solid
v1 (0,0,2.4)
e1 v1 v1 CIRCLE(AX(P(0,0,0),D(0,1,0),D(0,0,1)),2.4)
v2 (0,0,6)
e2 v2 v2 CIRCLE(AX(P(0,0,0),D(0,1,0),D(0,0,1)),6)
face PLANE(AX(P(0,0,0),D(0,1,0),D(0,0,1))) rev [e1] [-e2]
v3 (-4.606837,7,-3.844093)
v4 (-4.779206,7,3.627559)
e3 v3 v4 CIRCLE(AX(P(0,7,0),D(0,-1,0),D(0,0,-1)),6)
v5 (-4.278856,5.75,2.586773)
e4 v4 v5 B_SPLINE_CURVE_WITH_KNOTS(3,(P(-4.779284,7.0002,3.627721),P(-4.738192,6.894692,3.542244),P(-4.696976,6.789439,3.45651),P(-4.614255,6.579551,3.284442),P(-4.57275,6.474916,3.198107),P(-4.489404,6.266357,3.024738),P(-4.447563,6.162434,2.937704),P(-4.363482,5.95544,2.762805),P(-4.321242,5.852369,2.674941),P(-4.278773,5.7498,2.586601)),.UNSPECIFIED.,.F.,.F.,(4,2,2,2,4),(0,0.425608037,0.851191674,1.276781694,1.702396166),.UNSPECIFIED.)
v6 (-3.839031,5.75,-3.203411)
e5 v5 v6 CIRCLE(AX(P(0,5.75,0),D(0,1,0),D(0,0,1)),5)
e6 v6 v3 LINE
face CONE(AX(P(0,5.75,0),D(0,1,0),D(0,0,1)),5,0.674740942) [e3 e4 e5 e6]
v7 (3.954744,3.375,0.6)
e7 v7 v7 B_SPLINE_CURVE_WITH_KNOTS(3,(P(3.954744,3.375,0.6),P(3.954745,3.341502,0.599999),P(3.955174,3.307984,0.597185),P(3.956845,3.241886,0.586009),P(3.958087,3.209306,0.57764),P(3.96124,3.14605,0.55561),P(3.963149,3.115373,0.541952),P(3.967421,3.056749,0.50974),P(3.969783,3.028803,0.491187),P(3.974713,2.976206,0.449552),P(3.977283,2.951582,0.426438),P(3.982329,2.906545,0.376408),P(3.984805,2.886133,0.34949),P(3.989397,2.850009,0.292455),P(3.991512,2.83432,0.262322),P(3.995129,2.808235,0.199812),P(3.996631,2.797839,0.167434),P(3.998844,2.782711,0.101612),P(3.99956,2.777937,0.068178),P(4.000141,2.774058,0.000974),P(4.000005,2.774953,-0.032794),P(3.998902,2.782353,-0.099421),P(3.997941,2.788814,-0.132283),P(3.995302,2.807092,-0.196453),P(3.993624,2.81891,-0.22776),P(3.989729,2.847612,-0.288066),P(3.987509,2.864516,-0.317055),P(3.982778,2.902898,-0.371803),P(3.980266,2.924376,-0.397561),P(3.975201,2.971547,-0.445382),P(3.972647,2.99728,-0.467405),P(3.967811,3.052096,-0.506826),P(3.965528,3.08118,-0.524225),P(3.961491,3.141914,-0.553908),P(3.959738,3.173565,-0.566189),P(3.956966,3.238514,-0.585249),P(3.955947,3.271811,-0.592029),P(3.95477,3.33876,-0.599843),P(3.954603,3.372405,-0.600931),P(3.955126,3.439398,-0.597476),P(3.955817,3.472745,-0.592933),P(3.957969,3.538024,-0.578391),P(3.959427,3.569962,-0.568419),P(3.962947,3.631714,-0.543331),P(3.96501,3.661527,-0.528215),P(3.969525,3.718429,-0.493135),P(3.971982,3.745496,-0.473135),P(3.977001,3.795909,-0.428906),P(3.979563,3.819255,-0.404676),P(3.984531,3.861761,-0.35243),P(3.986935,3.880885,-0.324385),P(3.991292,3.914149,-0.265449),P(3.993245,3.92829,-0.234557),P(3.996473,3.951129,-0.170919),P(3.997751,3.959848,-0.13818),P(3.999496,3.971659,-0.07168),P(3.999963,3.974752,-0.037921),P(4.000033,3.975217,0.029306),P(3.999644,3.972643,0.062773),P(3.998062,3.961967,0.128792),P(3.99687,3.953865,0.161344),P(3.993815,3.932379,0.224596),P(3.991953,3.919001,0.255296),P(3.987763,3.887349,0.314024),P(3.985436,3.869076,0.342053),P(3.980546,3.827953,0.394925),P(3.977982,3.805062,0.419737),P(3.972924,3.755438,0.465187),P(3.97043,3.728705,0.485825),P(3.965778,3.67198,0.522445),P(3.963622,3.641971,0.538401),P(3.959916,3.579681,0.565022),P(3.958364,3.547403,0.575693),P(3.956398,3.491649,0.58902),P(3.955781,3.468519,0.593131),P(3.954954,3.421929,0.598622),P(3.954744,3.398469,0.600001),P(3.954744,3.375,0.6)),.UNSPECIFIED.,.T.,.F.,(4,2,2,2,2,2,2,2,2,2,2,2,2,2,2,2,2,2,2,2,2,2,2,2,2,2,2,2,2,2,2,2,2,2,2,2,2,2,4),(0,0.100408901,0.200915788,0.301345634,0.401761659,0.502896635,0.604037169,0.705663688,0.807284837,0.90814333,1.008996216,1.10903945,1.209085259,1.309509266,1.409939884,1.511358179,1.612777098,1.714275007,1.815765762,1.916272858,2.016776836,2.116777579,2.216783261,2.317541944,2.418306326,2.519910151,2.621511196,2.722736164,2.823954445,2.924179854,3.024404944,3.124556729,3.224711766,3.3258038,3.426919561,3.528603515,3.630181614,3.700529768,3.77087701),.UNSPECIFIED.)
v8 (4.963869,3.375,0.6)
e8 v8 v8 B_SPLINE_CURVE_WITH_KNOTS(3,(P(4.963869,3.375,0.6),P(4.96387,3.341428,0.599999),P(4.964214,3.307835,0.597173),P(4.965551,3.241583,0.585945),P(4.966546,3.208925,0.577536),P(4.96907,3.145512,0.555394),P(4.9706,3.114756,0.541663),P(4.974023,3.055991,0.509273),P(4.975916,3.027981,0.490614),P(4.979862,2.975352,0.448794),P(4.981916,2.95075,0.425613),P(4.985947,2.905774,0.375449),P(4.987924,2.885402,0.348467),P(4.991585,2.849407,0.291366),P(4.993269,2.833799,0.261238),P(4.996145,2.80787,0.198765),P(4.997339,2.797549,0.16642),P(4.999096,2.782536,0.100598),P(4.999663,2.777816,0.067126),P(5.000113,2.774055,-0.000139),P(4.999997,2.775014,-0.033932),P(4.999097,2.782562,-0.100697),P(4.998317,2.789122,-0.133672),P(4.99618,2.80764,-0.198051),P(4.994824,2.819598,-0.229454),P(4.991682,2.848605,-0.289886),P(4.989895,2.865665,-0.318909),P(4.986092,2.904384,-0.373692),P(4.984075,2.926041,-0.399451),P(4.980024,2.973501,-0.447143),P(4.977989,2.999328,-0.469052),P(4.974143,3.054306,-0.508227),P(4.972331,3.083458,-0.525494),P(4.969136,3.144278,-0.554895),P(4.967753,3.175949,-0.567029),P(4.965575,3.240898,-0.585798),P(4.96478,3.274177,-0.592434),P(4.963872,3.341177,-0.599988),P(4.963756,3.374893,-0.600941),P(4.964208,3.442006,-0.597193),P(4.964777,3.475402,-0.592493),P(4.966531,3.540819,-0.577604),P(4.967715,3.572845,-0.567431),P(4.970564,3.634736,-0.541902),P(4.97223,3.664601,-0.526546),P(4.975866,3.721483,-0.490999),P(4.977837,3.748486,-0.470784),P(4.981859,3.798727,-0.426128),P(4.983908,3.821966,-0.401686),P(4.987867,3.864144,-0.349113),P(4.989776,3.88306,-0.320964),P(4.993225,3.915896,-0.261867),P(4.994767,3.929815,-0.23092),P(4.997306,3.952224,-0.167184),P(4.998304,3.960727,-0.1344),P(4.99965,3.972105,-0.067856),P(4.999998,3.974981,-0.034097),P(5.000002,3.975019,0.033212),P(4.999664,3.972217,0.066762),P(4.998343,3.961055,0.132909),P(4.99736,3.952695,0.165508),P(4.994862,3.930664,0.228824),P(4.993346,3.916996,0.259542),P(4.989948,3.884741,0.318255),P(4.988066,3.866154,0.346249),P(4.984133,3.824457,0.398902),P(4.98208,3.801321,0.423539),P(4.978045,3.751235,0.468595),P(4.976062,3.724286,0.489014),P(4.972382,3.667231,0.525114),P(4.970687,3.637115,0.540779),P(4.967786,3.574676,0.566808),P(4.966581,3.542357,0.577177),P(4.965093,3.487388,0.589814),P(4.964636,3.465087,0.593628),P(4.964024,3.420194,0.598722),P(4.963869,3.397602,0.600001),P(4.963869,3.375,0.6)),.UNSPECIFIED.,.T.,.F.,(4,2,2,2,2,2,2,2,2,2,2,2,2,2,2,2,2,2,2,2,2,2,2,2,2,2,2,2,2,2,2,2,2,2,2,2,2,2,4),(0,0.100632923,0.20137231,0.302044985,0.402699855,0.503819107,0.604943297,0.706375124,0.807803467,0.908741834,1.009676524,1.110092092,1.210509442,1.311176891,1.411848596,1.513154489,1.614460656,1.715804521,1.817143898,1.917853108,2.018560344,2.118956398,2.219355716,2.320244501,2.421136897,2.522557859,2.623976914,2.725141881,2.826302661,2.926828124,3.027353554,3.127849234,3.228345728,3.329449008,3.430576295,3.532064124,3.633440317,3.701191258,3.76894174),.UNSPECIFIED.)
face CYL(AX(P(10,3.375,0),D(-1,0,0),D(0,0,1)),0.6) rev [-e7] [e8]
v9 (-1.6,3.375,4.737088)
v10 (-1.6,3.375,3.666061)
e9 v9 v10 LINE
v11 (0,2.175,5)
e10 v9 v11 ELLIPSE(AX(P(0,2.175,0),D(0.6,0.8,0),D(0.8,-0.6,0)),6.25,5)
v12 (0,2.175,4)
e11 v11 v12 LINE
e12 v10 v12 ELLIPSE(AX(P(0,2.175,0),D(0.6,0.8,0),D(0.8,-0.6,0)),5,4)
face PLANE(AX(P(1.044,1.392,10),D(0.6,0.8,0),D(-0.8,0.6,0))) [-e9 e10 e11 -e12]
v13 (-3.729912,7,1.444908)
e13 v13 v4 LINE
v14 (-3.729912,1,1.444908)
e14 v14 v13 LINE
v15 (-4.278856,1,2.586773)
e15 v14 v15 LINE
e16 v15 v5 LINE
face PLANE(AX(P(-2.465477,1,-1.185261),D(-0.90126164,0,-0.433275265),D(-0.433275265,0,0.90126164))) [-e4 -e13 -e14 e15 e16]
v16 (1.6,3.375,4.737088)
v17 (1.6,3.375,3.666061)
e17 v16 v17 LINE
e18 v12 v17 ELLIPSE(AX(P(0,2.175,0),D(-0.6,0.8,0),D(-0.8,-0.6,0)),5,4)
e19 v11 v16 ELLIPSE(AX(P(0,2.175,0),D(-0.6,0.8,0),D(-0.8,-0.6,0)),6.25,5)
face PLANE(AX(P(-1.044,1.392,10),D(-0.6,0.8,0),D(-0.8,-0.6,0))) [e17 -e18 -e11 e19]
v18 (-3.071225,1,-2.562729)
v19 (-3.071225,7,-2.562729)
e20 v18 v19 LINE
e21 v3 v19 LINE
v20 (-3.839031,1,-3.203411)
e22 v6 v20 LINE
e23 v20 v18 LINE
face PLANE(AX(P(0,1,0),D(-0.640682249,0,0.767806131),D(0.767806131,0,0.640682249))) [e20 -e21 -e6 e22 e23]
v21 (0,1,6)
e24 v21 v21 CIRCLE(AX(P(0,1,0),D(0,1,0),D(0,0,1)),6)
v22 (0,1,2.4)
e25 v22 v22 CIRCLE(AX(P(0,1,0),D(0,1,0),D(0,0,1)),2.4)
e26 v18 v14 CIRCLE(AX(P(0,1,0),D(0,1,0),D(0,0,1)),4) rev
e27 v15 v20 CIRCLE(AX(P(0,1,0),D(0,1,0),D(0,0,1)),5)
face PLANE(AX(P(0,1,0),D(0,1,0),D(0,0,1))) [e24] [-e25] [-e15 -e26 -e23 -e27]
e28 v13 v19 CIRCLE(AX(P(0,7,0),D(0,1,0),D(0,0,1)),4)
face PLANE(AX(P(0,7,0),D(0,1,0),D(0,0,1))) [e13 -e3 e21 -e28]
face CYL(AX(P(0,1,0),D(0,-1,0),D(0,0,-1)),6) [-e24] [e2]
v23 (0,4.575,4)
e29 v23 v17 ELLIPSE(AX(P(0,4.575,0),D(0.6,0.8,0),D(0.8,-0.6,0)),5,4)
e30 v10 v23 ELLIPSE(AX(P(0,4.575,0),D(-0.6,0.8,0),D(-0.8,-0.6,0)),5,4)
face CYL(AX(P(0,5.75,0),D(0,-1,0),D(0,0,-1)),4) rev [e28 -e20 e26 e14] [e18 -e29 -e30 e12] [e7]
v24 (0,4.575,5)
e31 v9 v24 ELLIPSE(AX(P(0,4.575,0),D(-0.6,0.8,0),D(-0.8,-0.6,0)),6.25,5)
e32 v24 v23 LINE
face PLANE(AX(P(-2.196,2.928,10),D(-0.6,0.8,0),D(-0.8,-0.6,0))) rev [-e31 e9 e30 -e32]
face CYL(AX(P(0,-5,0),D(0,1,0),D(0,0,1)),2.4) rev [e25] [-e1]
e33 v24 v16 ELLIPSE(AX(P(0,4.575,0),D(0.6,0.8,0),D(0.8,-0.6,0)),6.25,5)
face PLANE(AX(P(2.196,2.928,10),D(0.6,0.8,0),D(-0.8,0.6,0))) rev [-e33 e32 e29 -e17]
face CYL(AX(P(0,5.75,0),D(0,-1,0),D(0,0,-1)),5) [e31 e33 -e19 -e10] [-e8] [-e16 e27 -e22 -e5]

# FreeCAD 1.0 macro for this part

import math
import FreeCAD as App
import Part
import Sketcher


def add_polygon(sketch, points):
    """Adds a closed chain of lines whose ends are joined by coincident constraints."""
    first, n = sketch.GeometryCount, len(points)
    for a, b in zip(points, points[1:] + points[:1]):
        sketch.addGeometry(Part.LineSegment(App.Vector(*a, 0), App.Vector(*b, 0)), False)
    for i in range(n):
        sketch.addConstraint(Sketcher.Constraint("Coincident", first + i, 2, first + (i + 1) % n, 1))

doc = App.newDocument("Part")
body = doc.addObject("PartDesign::Body", "Body")

sketch1 = body.newObject("Sketcher::SketchObject", "Sketch")
sketch1.AttachmentSupport = (doc.getObject("XZ_Plane"), [""])
sketch1.MapMode = "FlatFace"
sketch1.addGeometry(Part.Circle(App.Vector(0, 0, 0), App.Vector(0, 0, 1), 6), False)
sketch1.addConstraint(Sketcher.Constraint("Coincident", 0, 3, -1, 1))
sketch1.addConstraint(Sketcher.Constraint("Diameter", 0, 12.0))
pad1 = body.newObject("PartDesign::Pad", "Pad")
pad1.Profile = sketch1
pad1.Length = 1
pad1.Reversed = True

sketch2 = body.newObject("Sketcher::SketchObject", "Sketch001")
sketch2.AttachmentSupport = (doc.getObject("XZ_Plane"), [""])
sketch2.MapMode = "FlatFace"
sketch2.AttachmentOffset = App.Placement(App.Vector(0, 0, -1), App.Rotation())
sketch2.addGeometry(Part.Circle(App.Vector(0, 0, 0), App.Vector(0, 0, 1), 5), False)
sketch2.addGeometry(Part.Circle(App.Vector(0, 0, 0), App.Vector(0, 0, 1), 4), False)
sketch2.addConstraint(Sketcher.Constraint("Coincident", 0, 3, -1, 1))
sketch2.addConstraint(Sketcher.Constraint("Coincident", 1, 3, -1, 1))
sketch2.addConstraint(Sketcher.Constraint("Diameter", 0, 10.0))
sketch2.addConstraint(Sketcher.Constraint("Diameter", 1, 8.0))
pad2 = body.newObject("PartDesign::Pad", "Pad001")
pad2.Profile = sketch2
pad2.Length = 4.75
pad2.Reversed = True

sketch3 = body.newObject("Sketcher::SketchObject", "Sketch002")
sketch3.AttachmentSupport = (doc.getObject("XY_Plane"), [""])
sketch3.MapMode = "FlatFace"
add_polygon(sketch3, [(0, 5.8), (5, 5.8), (6, 7), (0, 7)])
sketch3.addConstraint(Sketcher.Constraint("Horizontal", 0))
sketch3.addConstraint(Sketcher.Constraint("Horizontal", 2))
sketch3.addConstraint(Sketcher.Constraint("Vertical", 3))
sketch3.addConstraint(Sketcher.Constraint("PointOnObject", 2, 2, -2))
sketch3.addConstraint(Sketcher.Constraint("DistanceX", 0, 1, 0, 2, 5.0))
sketch3.addConstraint(Sketcher.Constraint("DistanceX", 2, 2, 2, 1, 6.0))
sketch3.addConstraint(Sketcher.Constraint("DistanceY", -1, 1, 1, 2, 7.0))
sketch3.addConstraint(Sketcher.Constraint("DistanceY", 3, 2, 3, 1, 1.25))
revolution = body.newObject("PartDesign::Revolution", "Revolution")
revolution.Profile = sketch3
revolution.ReferenceAxis = (sketch3, ["V_Axis"])
revolution.Angle = 360

sketch4 = body.newObject("Sketcher::SketchObject", "Sketch003")
sketch4.AttachmentSupport = (doc.getObject("XZ_Plane"), [""])
sketch4.MapMode = "FlatFace"
sketch4.AttachmentOffset = App.Placement(App.Vector(0, 0, -4), App.Rotation())
sketch4.addGeometry(Part.Circle(App.Vector(0, 0, 0), App.Vector(0, 0, 1), 4), False)
sketch4.addConstraint(Sketcher.Constraint("Coincident", 0, 3, -1, 1))
sketch4.addConstraint(Sketcher.Constraint("Diameter", 0, 8.0))
pocket1 = body.newObject("PartDesign::Pocket", "Pocket")
pocket1.Profile = sketch4
pocket1.Length = 3

sketch5 = body.newObject("Sketcher::SketchObject", "Sketch004")
sketch5.AttachmentSupport = (doc.getObject("XY_Plane"), [""])
sketch5.MapMode = "FlatFace"
add_polygon(sketch5, [(1.6, 3.4), (0, 4.6), (-1.6, 3.4), (0, 2.2)])
sketch5.addConstraint(Sketcher.Constraint("Symmetric", 1, 2, 3, 2, -2))
sketch5.addConstraint(Sketcher.Constraint("PointOnObject", 0, 2, -2))
sketch5.addConstraint(Sketcher.Constraint("PointOnObject", 2, 2, -2))
sketch5.addConstraint(Sketcher.Constraint("Parallel", 0, 2))
sketch5.addConstraint(Sketcher.Constraint("Distance", 0, 2.0))
sketch5.addConstraint(Sketcher.Constraint("DistanceX", 1, 2, -1, 1, 1.6))
sketch5.addConstraint(Sketcher.Constraint("DistanceY", -1, 1, 0, 2, 4.575))
pocket2 = body.newObject("PartDesign::Pocket", "Pocket001")
pocket2.Profile = sketch5
pocket2.Length = 10
pocket2.Reversed = True

sketch6 = body.newObject("Sketcher::SketchObject", "Sketch005")
sketch6.AttachmentSupport = (doc.getObject("YZ_Plane"), [""])
sketch6.MapMode = "FlatFace"
sketch6.addGeometry(Part.ArcOfCircle(Part.Circle(App.Vector(3.4, 0, 0), App.Vector(0, 0, 1), 0.6), math.radians(-90), math.radians(0)), False)
sketch6.addGeometry(Part.ArcOfCircle(Part.Circle(App.Vector(3.4, 0, 0), App.Vector(0, 0, 1), 0.6), math.radians(0), math.radians(180)), False)
sketch6.addGeometry(Part.ArcOfCircle(Part.Circle(App.Vector(3.4, 0, 0), App.Vector(0, 0, 1), 0.6), math.radians(180), math.radians(270)), False)
sketch6.addConstraint(Sketcher.Constraint("Tangent", 0, 2, 1, 1))
sketch6.addConstraint(Sketcher.Constraint("Tangent", 1, 2, 2, 1))
sketch6.addConstraint(Sketcher.Constraint("Tangent", 2, 2, 0, 1))
sketch6.addConstraint(Sketcher.Constraint("PointOnObject", 0, 3, -1))
sketch6.addConstraint(Sketcher.Constraint("PointOnObject", 0, 2, -1))
sketch6.addConstraint(Sketcher.Constraint("PointOnObject", 1, 2, -1))
sketch6.addConstraint(Sketcher.Constraint("Vertical", 1, 3, 2, 2))
sketch6.addConstraint(Sketcher.Constraint("Radius", 0, 0.6))
sketch6.addConstraint(Sketcher.Constraint("DistanceX", -1, 1, 0, 3, 3.375))
pocket3 = body.newObject("PartDesign::Pocket", "Pocket002")
pocket3.Profile = sketch6
pocket3.Length = 10
pocket3.Reversed = True

sketch7 = body.newObject("Sketcher::SketchObject", "Sketch006")
sketch7.AttachmentSupport = (doc.getObject("XZ_Plane"), [""])
sketch7.MapMode = "FlatFace"
sketch7.AttachmentOffset = App.Placement(App.Vector(0, 0, -1), App.Rotation())
sketch7.addGeometry(Part.LineSegment(App.Vector(-4.8, 3.6, 0), App.Vector(-3.7, 1.4, 0)), False)
sketch7.addGeometry(Part.ArcOfCircle(Part.Circle(App.Vector(0, 0, 0), App.Vector(0, 0, 1), 4), math.radians(159), math.radians(220)), False)
sketch7.addGeometry(Part.LineSegment(App.Vector(-3.1, -2.6, 0), App.Vector(-4.6, -3.8, 0)), False)
sketch7.addGeometry(Part.ArcOfCircle(Part.Circle(App.Vector(0, 0, 0), App.Vector(0, 0, 1), 6), math.radians(143), math.radians(220)), False)
sketch7.addConstraint(Sketcher.Constraint("Coincident", 0, 2, 1, 1))
sketch7.addConstraint(Sketcher.Constraint("Coincident", 1, 2, 2, 1))
sketch7.addConstraint(Sketcher.Constraint("Coincident", 2, 2, 3, 2))
sketch7.addConstraint(Sketcher.Constraint("Coincident", 3, 1, 0, 1))
sketch7.addConstraint(Sketcher.Constraint("Coincident", 1, 3, -1, 1))
sketch7.addConstraint(Sketcher.Constraint("Coincident", 3, 3, -1, 1))
sketch7.addConstraint(Sketcher.Constraint("Radius", 1, 4.0))
sketch7.addConstraint(Sketcher.Constraint("Radius", 3, 6.0))
sketch7.addConstraint(Sketcher.Constraint("DistanceY", 2, 2, 0, 2, 5.289001))
sketch7.addConstraint(Sketcher.Constraint("DistanceX", 0, 2, -1, 1, 3.729912))
sketch7.addConstraint(Sketcher.Constraint("DistanceY", 1, 2, -1, 1, 2.562729))
sketch7.addConstraint(Sketcher.Constraint("DistanceY", -1, 1, 3, 1, 3.627559))
pocket4 = body.newObject("PartDesign::Pocket", "Pocket003")
pocket4.Profile = sketch7
pocket4.Length = 6

sketch8 = body.newObject("Sketcher::SketchObject", "Sketch007")
sketch8.AttachmentSupport = (doc.getObject("XZ_Plane"), [""])
sketch8.MapMode = "FlatFace"
sketch8.AttachmentOffset = App.Placement(App.Vector(0, 0, -1), App.Rotation())
sketch8.addGeometry(Part.Circle(App.Vector(0, 0, 0), App.Vector(0, 0, 1), 2.4), False)
sketch8.addConstraint(Sketcher.Constraint("Coincident", 0, 3, -1, 1))
sketch8.addConstraint(Sketcher.Constraint("Diameter", 0, 4.8))
pocket5 = body.newObject("PartDesign::Pocket", "Pocket004")
pocket5.Profile = sketch8
pocket5.Length = 6
pocket5.Reversed = True

doc.recompute()
